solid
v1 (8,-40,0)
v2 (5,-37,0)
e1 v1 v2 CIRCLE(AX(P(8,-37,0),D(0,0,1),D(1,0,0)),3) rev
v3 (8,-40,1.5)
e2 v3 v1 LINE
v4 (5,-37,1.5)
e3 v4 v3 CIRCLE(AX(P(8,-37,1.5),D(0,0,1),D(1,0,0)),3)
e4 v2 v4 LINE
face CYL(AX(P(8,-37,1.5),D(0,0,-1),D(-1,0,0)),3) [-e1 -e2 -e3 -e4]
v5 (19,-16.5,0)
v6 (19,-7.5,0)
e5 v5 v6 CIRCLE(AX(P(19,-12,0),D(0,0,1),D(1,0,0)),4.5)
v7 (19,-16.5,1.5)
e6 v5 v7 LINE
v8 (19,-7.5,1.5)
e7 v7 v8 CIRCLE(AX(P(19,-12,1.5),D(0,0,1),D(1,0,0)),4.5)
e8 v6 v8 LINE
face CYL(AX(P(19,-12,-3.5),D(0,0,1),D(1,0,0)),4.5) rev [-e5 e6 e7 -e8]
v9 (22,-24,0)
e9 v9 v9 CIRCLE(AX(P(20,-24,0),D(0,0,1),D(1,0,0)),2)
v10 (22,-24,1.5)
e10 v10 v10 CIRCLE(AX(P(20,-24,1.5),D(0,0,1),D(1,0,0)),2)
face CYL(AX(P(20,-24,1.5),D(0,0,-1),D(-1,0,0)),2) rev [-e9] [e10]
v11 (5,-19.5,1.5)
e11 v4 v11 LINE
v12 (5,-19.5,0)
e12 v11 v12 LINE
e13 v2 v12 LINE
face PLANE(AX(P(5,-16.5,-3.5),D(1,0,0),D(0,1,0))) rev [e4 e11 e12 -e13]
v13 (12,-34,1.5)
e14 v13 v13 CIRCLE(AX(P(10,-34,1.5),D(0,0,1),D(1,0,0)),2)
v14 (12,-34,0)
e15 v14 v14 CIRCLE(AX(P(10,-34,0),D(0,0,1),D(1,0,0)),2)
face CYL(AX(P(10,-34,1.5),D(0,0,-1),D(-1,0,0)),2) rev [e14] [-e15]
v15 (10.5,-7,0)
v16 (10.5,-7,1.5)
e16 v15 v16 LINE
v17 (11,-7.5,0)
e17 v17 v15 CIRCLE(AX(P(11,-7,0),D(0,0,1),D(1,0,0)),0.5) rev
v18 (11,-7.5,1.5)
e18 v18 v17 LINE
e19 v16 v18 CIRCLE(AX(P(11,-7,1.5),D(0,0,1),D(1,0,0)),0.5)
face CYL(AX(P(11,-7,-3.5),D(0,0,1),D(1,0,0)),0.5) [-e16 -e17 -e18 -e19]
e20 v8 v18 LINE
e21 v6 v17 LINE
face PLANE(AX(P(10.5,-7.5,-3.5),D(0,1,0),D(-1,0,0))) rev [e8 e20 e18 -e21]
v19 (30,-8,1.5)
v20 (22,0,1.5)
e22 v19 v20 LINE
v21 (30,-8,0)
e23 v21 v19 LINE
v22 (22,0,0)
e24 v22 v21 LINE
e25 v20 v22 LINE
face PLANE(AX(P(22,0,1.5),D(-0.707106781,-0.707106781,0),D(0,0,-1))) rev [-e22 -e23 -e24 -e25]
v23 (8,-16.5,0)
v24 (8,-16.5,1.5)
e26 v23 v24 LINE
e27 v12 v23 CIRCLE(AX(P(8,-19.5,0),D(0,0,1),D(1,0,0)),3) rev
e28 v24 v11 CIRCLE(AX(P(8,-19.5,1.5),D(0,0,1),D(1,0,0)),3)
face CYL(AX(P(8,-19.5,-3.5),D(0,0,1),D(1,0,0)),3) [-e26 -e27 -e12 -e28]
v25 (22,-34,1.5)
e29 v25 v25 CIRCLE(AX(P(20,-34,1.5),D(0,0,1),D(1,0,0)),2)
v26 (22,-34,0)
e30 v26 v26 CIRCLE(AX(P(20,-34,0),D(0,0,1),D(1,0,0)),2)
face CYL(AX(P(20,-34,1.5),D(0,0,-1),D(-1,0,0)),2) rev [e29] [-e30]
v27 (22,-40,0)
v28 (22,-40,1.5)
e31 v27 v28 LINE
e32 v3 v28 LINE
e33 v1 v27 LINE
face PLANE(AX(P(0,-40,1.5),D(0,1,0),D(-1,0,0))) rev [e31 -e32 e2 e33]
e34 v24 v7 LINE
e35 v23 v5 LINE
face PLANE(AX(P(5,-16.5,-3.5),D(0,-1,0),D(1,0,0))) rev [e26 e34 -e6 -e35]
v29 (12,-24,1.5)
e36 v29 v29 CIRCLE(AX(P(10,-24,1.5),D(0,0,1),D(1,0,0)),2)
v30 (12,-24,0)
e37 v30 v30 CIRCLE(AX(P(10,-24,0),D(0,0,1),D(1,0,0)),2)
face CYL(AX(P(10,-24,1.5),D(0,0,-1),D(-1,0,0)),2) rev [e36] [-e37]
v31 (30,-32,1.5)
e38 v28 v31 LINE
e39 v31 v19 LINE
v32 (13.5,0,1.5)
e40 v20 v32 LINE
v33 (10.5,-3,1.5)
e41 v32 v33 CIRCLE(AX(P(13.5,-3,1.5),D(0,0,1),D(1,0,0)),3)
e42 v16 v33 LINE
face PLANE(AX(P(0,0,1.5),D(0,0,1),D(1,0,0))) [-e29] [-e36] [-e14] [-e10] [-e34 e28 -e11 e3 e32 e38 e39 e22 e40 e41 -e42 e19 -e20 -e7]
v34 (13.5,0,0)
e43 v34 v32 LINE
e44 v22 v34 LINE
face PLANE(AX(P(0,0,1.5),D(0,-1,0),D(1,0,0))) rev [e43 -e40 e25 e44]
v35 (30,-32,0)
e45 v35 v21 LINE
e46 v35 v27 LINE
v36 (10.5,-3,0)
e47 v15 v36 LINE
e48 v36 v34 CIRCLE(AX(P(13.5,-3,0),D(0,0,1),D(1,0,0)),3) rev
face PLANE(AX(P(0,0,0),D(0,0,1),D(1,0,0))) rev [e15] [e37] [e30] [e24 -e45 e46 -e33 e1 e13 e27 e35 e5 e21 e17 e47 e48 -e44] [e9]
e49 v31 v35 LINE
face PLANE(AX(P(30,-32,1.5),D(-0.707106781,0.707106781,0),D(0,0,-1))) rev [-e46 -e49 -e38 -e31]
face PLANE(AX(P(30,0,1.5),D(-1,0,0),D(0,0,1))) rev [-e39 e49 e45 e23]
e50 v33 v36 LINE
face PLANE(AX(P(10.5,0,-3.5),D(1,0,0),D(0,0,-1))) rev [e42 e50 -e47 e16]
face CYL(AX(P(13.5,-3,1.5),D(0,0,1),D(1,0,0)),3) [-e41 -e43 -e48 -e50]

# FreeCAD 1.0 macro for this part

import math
import FreeCAD as App
import Part
import Sketcher
from FreeCAD import Vector
Q = App.Units.Quantity


def edges_at(feature, points):
    """Names of the edges that pass closest to the given points."""
    edges = feature.Shape.Edges
    near = lambda p: min(range(len(edges)), key=lambda i: edges[i].distToShape(Part.Vertex(*p))[0])
    return sorted({f"Edge{near(p) + 1}" for p in points})

doc = App.newDocument("Part")
params = doc.addObject("Spreadsheet::Sheet", "Params")
for row, (alias, value) in enumerate([
    ("sketch1_diameter", "4 mm"),
    ("sketch1_width", "30 mm"),
    ("sketch1_height", "40 mm"),
    ("pad1_length", "1.5 mm"),
    ("chamfer_size", "8 mm"),
    ("sketch2_radius", "4.5 mm"),
    ("sketch2_width", "14 mm"),
    ("sketch2_width2", "5 mm"),
    ("sketch2_height", "40 mm"),
    ("sketch2_width3", "8.5 mm"),
    ("pocket1_length", "5 mm"),
    ("fillet_radius", "3 mm"),
    ("fillet2_radius", "0.5 mm"),
], start=1):
    params.set(f"A{row}", alias)
    params.set(f"B{row}", "=" + value)
    params.setAlias(f"B{row}", alias)

body = doc.addObject("PartDesign::Body", "Body")

# Sketch on XY plane
sketch1 = body.newObject("Sketcher::SketchObject", "Sketch")
sketch1.AttachmentSupport = (doc.getObject("XY_Plane"), [""])
sketch1.MapMode = "FlatFace"
sketch1.addGeometry([
    Part.LineSegment(Vector(0, 0, 0), Vector(0, -40, 0)),  # 0
    Part.LineSegment(Vector(0, -40, 0), Vector(30, -40, 0)),  # 1
    Part.LineSegment(Vector(30, -40, 0), Vector(30, 0, 0)),  # 2
    Part.LineSegment(Vector(30, 0, 0), Vector(0, 0, 0)),  # 3
    Part.Circle(Vector(10, -34, 0), Vector(0, 0, 1), 2),  # 4
    Part.Circle(Vector(20, -34, 0), Vector(0, 0, 1), 2),  # 5
    Part.Circle(Vector(10, -24, 0), Vector(0, 0, 1), 2),  # 6
    Part.Circle(Vector(20, -24, 0), Vector(0, 0, 1), 2),  # 7
], False)
sketch1.addConstraint([
    Sketcher.Constraint("Coincident", 0, 2, 1, 1),
    Sketcher.Constraint("Coincident", 1, 2, 2, 1),
    Sketcher.Constraint("Coincident", 2, 2, 3, 1),
    Sketcher.Constraint("Coincident", 3, 2, 0, 1),
    Sketcher.Constraint("Vertical", 0),
    Sketcher.Constraint("Horizontal", 1),
    Sketcher.Constraint("Vertical", 2),
    Sketcher.Constraint("Horizontal", 3),
    Sketcher.Constraint("Coincident", 3, 2, -1, 1),
    Sketcher.Constraint("Equal", 4, 5),
    Sketcher.Constraint("Equal", 5, 6),
    Sketcher.Constraint("Equal", 6, 7),
    Sketcher.Constraint("Horizontal", 4, 3, 5, 3),
    Sketcher.Constraint("Horizontal", 6, 3, 7, 3),
    Sketcher.Constraint("Vertical", 4, 3, 6, 3),
    Sketcher.Constraint("Vertical", 5, 3, 7, 3),
    Sketcher.Constraint("Diameter", 4, Q("4 mm")),
    Sketcher.Constraint("DistanceX", 1, 1, 1, 2, Q("30 mm")),
    Sketcher.Constraint("DistanceY", 0, 2, 0, 1, Q("40 mm")),
    Sketcher.Constraint("DistanceX", -1, 1, 4, 3, Q("10 mm")),
    Sketcher.Constraint("DistanceY", 4, 3, -1, 1, Q("34 mm")),
    Sketcher.Constraint("DistanceX", -1, 1, 5, 3, Q("20 mm")),
    Sketcher.Constraint("DistanceY", 6, 3, -1, 1, Q("24 mm")),
])
sketch1.setExpression("Constraints[16]", "Params.sketch1_diameter")
sketch1.setExpression("Constraints[17]", "Params.sketch1_width")
sketch1.setExpression("Constraints[18]", "Params.sketch1_height")
pad1 = body.newObject("PartDesign::Pad", "Pad")
pad1.Profile = sketch1
pad1.setExpression("Length", "Params.pad1_length")
doc.recompute()

chamfer = body.newObject("PartDesign::Chamfer", "Chamfer")
chamfer.Base = (pad1, edges_at(pad1, [(30, 0, 0.75), (30, -40, 0.75)]))
chamfer.setExpression("Size", "Params.chamfer_size")

# Sketch on XY plane
sketch2 = body.newObject("Sketcher::SketchObject", "Sketch001")
sketch2.AttachmentSupport = (doc.getObject("XY_Plane"), [""])
sketch2.MapMode = "FlatFace"
sketch2.AttachmentOffset = App.Placement(Vector(0, 0, 1.5), App.Rotation())
sketch2.addGeometry([
    Part.LineSegment(Vector(5, -16.5, 0), Vector(19, -16.5, 0)),  # 0
    Part.ArcOfCircle(Part.Circle(Vector(19, -12, 0), Vector(0, 0, 1), 4.5), math.radians(-90), math.radians(90)),  # 1
    Part.LineSegment(Vector(19, -7.5, 0), Vector(10.5, -7.5, 0)),  # 2
    Part.LineSegment(Vector(10.5, -7.5, 0), Vector(10.5, 0, 0)),  # 3
    Part.LineSegment(Vector(10.5, 0, 0), Vector(0, 0, 0)),  # 4
    Part.LineSegment(Vector(0, 0, 0), Vector(0, -40, 0)),  # 5
    Part.LineSegment(Vector(0, -40, 0), Vector(5, -40, 0)),  # 6
    Part.LineSegment(Vector(5, -40, 0), Vector(5, -16.5, 0)),  # 7
], False)
sketch2.addConstraint([
    Sketcher.Constraint("Tangent", 0, 2, 1, 1),
    Sketcher.Constraint("Tangent", 1, 2, 2, 1),
    Sketcher.Constraint("Coincident", 2, 2, 3, 1),
    Sketcher.Constraint("Coincident", 3, 2, 4, 1),
    Sketcher.Constraint("Coincident", 4, 2, 5, 1),
    Sketcher.Constraint("Coincident", 5, 2, 6, 1),
    Sketcher.Constraint("Coincident", 6, 2, 7, 1),
    Sketcher.Constraint("Coincident", 7, 2, 0, 1),
    Sketcher.Constraint("Horizontal", 0),
    Sketcher.Constraint("Horizontal", 2),
    Sketcher.Constraint("Vertical", 3),
    Sketcher.Constraint("Horizontal", 4),
    Sketcher.Constraint("Vertical", 5),
    Sketcher.Constraint("Horizontal", 6),
    Sketcher.Constraint("Vertical", 7),
    Sketcher.Constraint("Coincident", 4, 2, -1, 1),
    Sketcher.Constraint("Radius", 1, Q("4.5 mm")),
    Sketcher.Constraint("DistanceX", 0, 1, 0, 2, Q("14 mm")),
    Sketcher.Constraint("DistanceX", 6, 1, 6, 2, Q("5 mm")),
    Sketcher.Constraint("DistanceY", 5, 2, 5, 1, Q("40 mm")),
    Sketcher.Constraint("DistanceX", 2, 2, 2, 1, Q("8.5 mm")),
    Sketcher.Constraint("DistanceY", 3, 1, 3, 2, Q("7.5 mm")),
])
sketch2.setExpression("Constraints[16]", "Params.sketch2_radius")
sketch2.setExpression("Constraints[17]", "Params.sketch2_width")
sketch2.setExpression("Constraints[18]", "Params.sketch2_width2")
sketch2.setExpression("Constraints[19]", "Params.sketch2_height")
sketch2.setExpression("Constraints[20]", "Params.sketch2_width3")
pocket1 = body.newObject("PartDesign::Pocket", "Pocket")
pocket1.Profile = sketch2
pocket1.setExpression("Length", "Params.pocket1_length")
doc.recompute()

fillet = body.newObject("PartDesign::Fillet", "Fillet")
fillet.Base = (pocket1, edges_at(pocket1, [(10.5, 0, 0.75), (5, -40, 0.75), (5, -16.5, 0.75)]))
fillet.setExpression("Radius", "Params.fillet_radius")
doc.recompute()

fillet2 = body.newObject("PartDesign::Fillet", "Fillet001")
fillet2.Base = (fillet, edges_at(fillet, [(10.5, -7.5, 0.75)]))
fillet2.setExpression("Radius", "Params.fillet2_radius")

doc.recompute()
